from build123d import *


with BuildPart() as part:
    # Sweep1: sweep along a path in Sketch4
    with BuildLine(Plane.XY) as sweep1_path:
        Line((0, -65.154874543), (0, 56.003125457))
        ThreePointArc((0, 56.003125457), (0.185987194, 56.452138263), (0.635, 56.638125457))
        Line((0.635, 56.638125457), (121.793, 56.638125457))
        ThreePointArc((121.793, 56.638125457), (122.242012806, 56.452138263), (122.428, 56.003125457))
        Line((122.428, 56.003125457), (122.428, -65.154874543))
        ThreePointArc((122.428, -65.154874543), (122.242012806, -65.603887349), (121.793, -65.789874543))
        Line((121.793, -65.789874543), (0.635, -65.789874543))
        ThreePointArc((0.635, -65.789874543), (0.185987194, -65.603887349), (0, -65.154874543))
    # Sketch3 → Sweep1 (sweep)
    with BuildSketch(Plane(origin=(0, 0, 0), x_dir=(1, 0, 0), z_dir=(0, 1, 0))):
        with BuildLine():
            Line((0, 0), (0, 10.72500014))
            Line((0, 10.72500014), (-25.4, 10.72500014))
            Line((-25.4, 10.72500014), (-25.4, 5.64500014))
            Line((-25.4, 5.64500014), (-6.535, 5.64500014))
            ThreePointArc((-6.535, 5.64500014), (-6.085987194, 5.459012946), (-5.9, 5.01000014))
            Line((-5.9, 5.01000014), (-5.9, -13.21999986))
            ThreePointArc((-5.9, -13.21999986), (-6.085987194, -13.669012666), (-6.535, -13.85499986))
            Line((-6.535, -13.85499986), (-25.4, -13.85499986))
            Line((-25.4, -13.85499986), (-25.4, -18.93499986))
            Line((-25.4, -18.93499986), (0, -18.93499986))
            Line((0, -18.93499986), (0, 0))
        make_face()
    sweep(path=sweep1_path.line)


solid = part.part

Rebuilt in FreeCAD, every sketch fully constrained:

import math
import FreeCAD as App
import Part
import Sketcher
Q = App.Units.Quantity

doc = App.newDocument("Part")
body = doc.addObject("PartDesign::Body", "Body")

# Sketch on XZ plane
sketch1 = doc.addObject("Sketcher::SketchObject", "Sketch")
body.addObject(sketch1)
sketch1.AttachmentSupport = (doc.XZ_Plane, [""])
sketch1.MapMode = "FlatFace"
sketch1.addGeometry(Part.LineSegment(App.Vector(0, -10.7, 0), App.Vector(-25.4, -10.7, 0)), False)
sketch1.addGeometry(Part.LineSegment(App.Vector(-25.4, -10.7, 0), App.Vector(-25.4, -5.6, 0)), False)
sketch1.addGeometry(Part.LineSegment(App.Vector(-25.4, -5.6, 0), App.Vector(-6.5, -5.6, 0)), False)
sketch1.addGeometry(Part.ArcOfCircle(Part.Circle(App.Vector(-6.5, -5, 0), App.Vector(0, 0, 1), 0.6), math.radians(-90), math.radians(0)), False)
sketch1.addGeometry(Part.LineSegment(App.Vector(-5.9, -5, 0), App.Vector(-5.9, 13.2, 0)), False)
sketch1.addGeometry(Part.ArcOfCircle(Part.Circle(App.Vector(-6.5, 13.2, 0), App.Vector(0, 0, 1), 0.6), math.radians(0), math.radians(90)), False)
sketch1.addGeometry(Part.LineSegment(App.Vector(-6.5, 13.9, 0), App.Vector(-25.4, 13.9, 0)), False)
sketch1.addGeometry(Part.LineSegment(App.Vector(-25.4, 13.9, 0), App.Vector(-25.4, 18.9, 0)), False)
sketch1.addGeometry(Part.LineSegment(App.Vector(-25.4, 18.9, 0), App.Vector(0, 18.9, 0)), False)
sketch1.addGeometry(Part.LineSegment(App.Vector(0, 18.9, 0), App.Vector(0, -10.7, 0)), False)
sketch1.addConstraint(Sketcher.Constraint("Coincident", 0, 2, 1, 1))
sketch1.addConstraint(Sketcher.Constraint("Coincident", 1, 2, 2, 1))
sketch1.addConstraint(Sketcher.Constraint("Tangent", 2, 2, 3, 1))
sketch1.addConstraint(Sketcher.Constraint("Tangent", 3, 2, 4, 1))
sketch1.addConstraint(Sketcher.Constraint("Tangent", 4, 2, 5, 1))
sketch1.addConstraint(Sketcher.Constraint("Tangent", 5, 2, 6, 1))
sketch1.addConstraint(Sketcher.Constraint("Coincident", 6, 2, 7, 1))
sketch1.addConstraint(Sketcher.Constraint("Coincident", 7, 2, 8, 1))
sketch1.addConstraint(Sketcher.Constraint("Coincident", 8, 2, 9, 1))
sketch1.addConstraint(Sketcher.Constraint("Coincident", 9, 2, 0, 1))
sketch1.addConstraint(Sketcher.Constraint("Horizontal", 0))
sketch1.addConstraint(Sketcher.Constraint("Vertical", 1))
sketch1.addConstraint(Sketcher.Constraint("Horizontal", 2))
sketch1.addConstraint(Sketcher.Constraint("Vertical", 4))
sketch1.addConstraint(Sketcher.Constraint("Horizontal", 6))
sketch1.addConstraint(Sketcher.Constraint("Vertical", 7))
sketch1.addConstraint(Sketcher.Constraint("Horizontal", 8))
sketch1.addConstraint(Sketcher.Constraint("Vertical", 9))
sketch1.addConstraint(Sketcher.Constraint("Equal", 3, 5))
sketch1.addConstraint(Sketcher.Constraint("PointOnObject", 8, 2, -2))
sketch1.addConstraint(Sketcher.Constraint("Vertical", 1, 2, 6, 2))
sketch1.addConstraint(Sketcher.Constraint("Equal", 1, 7))
sketch1.addConstraint(Sketcher.Constraint("DistanceX", 0, 2, 0, 1, Q("1 in")))
sketch1.addConstraint(Sketcher.Constraint("DistanceY", 1, 1, 1, 2, Q("0.2 in")))
sketch1.addConstraint(Sketcher.Constraint("Radius", 3, Q("0.025 in")))
sketch1.addConstraint(Sketcher.Constraint("DistanceX", 2, 1, 2, 2, Q("18.865 mm")))
sketch1.addConstraint(Sketcher.Constraint("DistanceY", 4, 1, 4, 2, Q("18.23 mm")))
sketch1.addConstraint(Sketcher.Constraint("DistanceY", 3, 3, -1, 1, Q("5.01 mm")))

# Sketch on XY plane
sketch2 = doc.addObject("Sketcher::SketchObject", "Sketch001")
body.addObject(sketch2)
sketch2.AttachmentSupport = (doc.XY_Plane, [""])
sketch2.MapMode = "FlatFace"
sketch2.addGeometry(Part.LineSegment(App.Vector(0, -65.2, 0), App.Vector(0, 56, 0)), False)
sketch2.addGeometry(Part.ArcOfCircle(Part.Circle(App.Vector(0.6, 56, 0), App.Vector(0, 0, 1), 0.6), math.radians(90), math.radians(180)), False)
sketch2.addGeometry(Part.LineSegment(App.Vector(0.6, 56.6, 0), App.Vector(121.8, 56.6, 0)), False)
sketch2.addGeometry(Part.ArcOfCircle(Part.Circle(App.Vector(121.8, 56, 0), App.Vector(0, 0, 1), 0.6), math.radians(0), math.radians(90)), False)
sketch2.addGeometry(Part.LineSegment(App.Vector(122.4, 56, 0), App.Vector(122.4, -65.2, 0)), False)
sketch2.addGeometry(Part.ArcOfCircle(Part.Circle(App.Vector(121.8, -65.2, 0), App.Vector(0, 0, 1), 0.6), math.radians(-90), math.radians(0)), False)
sketch2.addGeometry(Part.LineSegment(App.Vector(121.8, -65.8, 0), App.Vector(0.6, -65.8, 0)), False)
sketch2.addGeometry(Part.ArcOfCircle(Part.Circle(App.Vector(0.6, -65.2, 0), App.Vector(0, 0, 1), 0.6), math.radians(180), math.radians(270)), False)
sketch2.addConstraint(Sketcher.Constraint("Tangent", 0, 2, 1, 2))
sketch2.addConstraint(Sketcher.Constraint("Tangent", 1, 1, 2, 1))
sketch2.addConstraint(Sketcher.Constraint("Tangent", 2, 2, 3, 2))
sketch2.addConstraint(Sketcher.Constraint("Tangent", 3, 1, 4, 1))
sketch2.addConstraint(Sketcher.Constraint("Tangent", 4, 2, 5, 2))
sketch2.addConstraint(Sketcher.Constraint("Tangent", 5, 1, 6, 1))
sketch2.addConstraint(Sketcher.Constraint("Tangent", 6, 2, 7, 2))
sketch2.addConstraint(Sketcher.Constraint("Tangent", 7, 1, 0, 1))
sketch2.addConstraint(Sketcher.Constraint("Vertical", 0))
sketch2.addConstraint(Sketcher.Constraint("Horizontal", 2))
sketch2.addConstraint(Sketcher.Constraint("Vertical", 4))
sketch2.addConstraint(Sketcher.Constraint("Horizontal", 6))
sketch2.addConstraint(Sketcher.Constraint("Equal", 1, 3))
sketch2.addConstraint(Sketcher.Constraint("Equal", 3, 5))
sketch2.addConstraint(Sketcher.Constraint("Equal", 5, 7))
sketch2.addConstraint(Sketcher.Constraint("PointOnObject", 0, 2, -2))
sketch2.addConstraint(Sketcher.Constraint("Equal", 6, 0))
sketch2.addConstraint(Sketcher.Constraint("Radius", 1, Q("0.025 in")))
sketch2.addConstraint(Sketcher.Constraint("DistanceX", 2, 1, 2, 2, Q("4.77 in")))
sketch2.addConstraint(Sketcher.Constraint("DistanceY", -1, 1, 1, 3, Q("56.003125 mm")))
doc.recompute()

additivepipe = doc.addObject("PartDesign::AdditivePipe", "AdditivePipe")
body.addObject(additivepipe)
additivepipe.Profile = sketch1
additivepipe.Spine = (sketch2, ["Edge1", "Edge2", "Edge3", "Edge4", "Edge5", "Edge6", "Edge7", "Edge8"])

doc.recompute()
